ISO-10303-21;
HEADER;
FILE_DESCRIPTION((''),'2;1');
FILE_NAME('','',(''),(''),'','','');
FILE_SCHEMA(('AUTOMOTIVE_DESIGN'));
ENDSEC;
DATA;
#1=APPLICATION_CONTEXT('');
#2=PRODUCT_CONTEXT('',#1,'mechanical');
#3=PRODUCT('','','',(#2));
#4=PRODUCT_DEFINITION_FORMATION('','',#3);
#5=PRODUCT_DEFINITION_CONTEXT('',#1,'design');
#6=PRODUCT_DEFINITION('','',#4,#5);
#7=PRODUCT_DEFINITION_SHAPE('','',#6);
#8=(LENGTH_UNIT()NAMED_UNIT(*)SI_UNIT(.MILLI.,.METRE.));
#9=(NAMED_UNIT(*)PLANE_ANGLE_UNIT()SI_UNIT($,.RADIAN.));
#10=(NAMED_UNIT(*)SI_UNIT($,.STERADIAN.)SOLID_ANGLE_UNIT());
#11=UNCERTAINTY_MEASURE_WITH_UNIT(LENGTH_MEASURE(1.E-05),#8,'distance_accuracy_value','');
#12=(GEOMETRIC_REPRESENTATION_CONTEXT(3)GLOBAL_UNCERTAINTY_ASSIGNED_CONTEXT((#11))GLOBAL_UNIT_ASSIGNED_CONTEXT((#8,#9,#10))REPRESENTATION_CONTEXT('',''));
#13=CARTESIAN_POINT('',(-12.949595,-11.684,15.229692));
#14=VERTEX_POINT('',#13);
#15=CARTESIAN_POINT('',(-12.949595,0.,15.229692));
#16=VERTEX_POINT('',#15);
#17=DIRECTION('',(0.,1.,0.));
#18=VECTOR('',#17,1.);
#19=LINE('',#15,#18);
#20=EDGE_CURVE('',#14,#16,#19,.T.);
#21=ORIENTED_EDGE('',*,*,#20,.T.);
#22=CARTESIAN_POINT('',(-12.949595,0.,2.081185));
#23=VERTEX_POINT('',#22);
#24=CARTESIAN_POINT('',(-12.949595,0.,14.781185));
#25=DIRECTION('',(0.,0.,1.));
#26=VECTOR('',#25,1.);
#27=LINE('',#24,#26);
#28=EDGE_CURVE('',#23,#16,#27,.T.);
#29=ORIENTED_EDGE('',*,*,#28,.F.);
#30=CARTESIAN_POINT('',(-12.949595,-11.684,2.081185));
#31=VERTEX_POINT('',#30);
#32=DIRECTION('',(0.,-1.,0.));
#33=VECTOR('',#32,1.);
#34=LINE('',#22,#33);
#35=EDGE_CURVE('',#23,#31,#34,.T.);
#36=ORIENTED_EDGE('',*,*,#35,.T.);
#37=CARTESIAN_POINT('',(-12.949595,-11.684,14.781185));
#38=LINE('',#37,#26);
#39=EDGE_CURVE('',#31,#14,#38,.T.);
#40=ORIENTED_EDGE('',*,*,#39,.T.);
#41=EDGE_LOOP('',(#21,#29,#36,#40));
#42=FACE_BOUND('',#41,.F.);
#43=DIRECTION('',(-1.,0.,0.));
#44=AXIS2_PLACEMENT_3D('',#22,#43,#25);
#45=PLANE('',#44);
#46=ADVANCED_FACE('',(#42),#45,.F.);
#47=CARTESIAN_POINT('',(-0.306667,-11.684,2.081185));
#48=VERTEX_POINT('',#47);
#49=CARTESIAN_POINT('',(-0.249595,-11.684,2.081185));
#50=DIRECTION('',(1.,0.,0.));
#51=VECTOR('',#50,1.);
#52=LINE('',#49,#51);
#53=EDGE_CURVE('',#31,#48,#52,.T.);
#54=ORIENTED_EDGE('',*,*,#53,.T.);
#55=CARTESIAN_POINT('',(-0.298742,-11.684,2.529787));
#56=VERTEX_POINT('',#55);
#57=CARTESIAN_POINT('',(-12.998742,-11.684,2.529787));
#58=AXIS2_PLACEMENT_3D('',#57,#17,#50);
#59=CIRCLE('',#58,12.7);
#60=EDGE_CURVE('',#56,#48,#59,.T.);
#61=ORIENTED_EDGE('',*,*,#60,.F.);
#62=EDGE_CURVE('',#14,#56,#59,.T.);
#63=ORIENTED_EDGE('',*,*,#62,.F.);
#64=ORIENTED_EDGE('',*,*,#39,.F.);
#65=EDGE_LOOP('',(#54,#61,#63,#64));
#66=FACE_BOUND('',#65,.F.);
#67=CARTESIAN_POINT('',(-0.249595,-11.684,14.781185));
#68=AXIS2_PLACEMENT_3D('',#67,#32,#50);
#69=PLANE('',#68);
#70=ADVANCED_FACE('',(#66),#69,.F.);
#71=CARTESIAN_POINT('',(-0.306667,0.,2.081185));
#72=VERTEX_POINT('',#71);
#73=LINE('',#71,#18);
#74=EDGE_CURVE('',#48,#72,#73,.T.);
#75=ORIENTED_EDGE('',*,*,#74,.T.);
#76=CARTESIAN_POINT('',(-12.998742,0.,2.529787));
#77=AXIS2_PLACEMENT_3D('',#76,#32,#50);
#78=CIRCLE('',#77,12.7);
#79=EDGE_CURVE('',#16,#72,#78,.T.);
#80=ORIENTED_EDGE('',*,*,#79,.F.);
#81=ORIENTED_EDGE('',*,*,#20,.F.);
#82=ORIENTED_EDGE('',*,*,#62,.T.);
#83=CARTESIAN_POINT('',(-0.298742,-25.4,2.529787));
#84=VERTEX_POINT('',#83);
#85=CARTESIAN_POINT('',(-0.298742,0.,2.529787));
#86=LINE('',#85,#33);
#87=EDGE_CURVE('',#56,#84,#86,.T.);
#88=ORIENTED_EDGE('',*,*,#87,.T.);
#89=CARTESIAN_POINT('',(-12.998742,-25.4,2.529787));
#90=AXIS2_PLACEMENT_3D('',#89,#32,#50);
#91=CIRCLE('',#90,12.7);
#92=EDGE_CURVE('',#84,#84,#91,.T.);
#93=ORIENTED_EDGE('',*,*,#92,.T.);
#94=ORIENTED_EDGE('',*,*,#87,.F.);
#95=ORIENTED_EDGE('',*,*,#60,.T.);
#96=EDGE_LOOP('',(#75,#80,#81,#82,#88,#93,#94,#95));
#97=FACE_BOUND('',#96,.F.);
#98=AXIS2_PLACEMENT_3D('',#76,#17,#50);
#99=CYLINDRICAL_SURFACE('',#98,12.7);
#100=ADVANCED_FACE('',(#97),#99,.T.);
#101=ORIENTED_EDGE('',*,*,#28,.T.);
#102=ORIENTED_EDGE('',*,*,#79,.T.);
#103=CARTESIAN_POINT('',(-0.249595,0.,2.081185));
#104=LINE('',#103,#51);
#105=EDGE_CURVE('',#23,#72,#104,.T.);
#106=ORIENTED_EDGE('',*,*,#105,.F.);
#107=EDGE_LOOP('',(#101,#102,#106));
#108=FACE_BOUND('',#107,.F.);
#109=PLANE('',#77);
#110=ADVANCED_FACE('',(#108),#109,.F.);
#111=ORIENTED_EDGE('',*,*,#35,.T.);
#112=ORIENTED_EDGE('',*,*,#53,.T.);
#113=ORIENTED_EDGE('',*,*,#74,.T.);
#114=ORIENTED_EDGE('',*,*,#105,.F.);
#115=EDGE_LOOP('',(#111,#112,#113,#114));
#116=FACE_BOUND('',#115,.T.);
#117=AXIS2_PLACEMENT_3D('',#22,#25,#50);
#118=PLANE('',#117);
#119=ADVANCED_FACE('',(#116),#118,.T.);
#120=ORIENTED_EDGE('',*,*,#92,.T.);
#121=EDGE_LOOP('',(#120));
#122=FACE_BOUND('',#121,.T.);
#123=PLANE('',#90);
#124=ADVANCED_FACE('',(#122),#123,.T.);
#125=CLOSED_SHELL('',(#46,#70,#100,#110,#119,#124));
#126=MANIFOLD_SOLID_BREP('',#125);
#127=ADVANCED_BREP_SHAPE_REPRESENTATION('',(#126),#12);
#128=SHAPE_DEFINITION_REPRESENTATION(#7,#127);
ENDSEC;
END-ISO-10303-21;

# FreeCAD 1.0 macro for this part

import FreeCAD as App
import Part
import Sketcher
from FreeCAD import Vector
Q = App.Units.Quantity

doc = App.newDocument("Part")
params = doc.addObject("Spreadsheet::Sheet", "Params")
for row, (alias, value) in enumerate([
    ("sketch1_diameter", "1 in"),
    ("pad1_length", "1 in"),
    ("sketch2_width", "1 in"),
    ("pocket1_length", "0.46 in"),
], start=1):
    params.set(f"A{row}", alias)
    params.set(f"B{row}", "=" + value)
    params.setAlias(f"B{row}", alias)

body = doc.addObject("PartDesign::Body", "Body")

sketch1 = doc.addObject("Sketcher::SketchObject", "Sketch")
body.addObject(sketch1)
sketch1.AttachmentSupport = (doc.XZ_Plane, [""])
sketch1.MapMode = "FlatFace"
sketch1.addGeometry(Part.Circle(Vector(-12.998742, 2.529787, 0), Vector(0, 0, 1), 12.7), False)
sketch1.addConstraint([
    Sketcher.Constraint("Diameter", 0, Q("1 in")),
    Sketcher.Constraint("DistanceX", 0, 3, -1, 1, Q("12.998742 mm")),
    Sketcher.Constraint("DistanceY", -1, 1, 0, 3, Q("2.529787 mm")),
])
sketch1.setExpression("Constraints[0]", "Params.sketch1_diameter")
pad1 = doc.addObject("PartDesign::Pad", "Pad")
body.addObject(pad1)
pad1.Profile = sketch1
pad1.setExpression("Length", "Params.pad1_length")

sketch2 = doc.addObject("Sketcher::SketchObject", "Sketch001")
body.addObject(sketch2)
sketch2.AttachmentSupport = (doc.XZ_Plane, [""])
sketch2.MapMode = "FlatFace"
sketch2.addGeometry([
    Part.LineSegment(Vector(-12.949595, 27.481185, 0), Vector(-12.949595, 2.081185, 0)),
    Part.LineSegment(Vector(-12.949595, 2.081185, 0), Vector(12.450405, 2.081185, 0)),
    Part.LineSegment(Vector(12.450405, 2.081185, 0), Vector(12.450405, 27.481185, 0)),
    Part.LineSegment(Vector(12.450405, 27.481185, 0), Vector(-12.949595, 27.481185, 0)),
], False)
sketch2.addConstraint([
    Sketcher.Constraint("Coincident", 0, 2, 1, 1),
    Sketcher.Constraint("Coincident", 1, 2, 2, 1),
    Sketcher.Constraint("Coincident", 2, 2, 3, 1),
    Sketcher.Constraint("Coincident", 3, 2, 0, 1),
    Sketcher.Constraint("Vertical", 0),
    Sketcher.Constraint("Horizontal", 1),
    Sketcher.Constraint("Vertical", 2),
    Sketcher.Constraint("Horizontal", 3),
    Sketcher.Constraint("Equal", 3, 0),
    Sketcher.Constraint("DistanceX", 1, 1, 1, 2, Q("1 in")),
    Sketcher.Constraint("DistanceX", 0, 2, -1, 1, Q("12.949595 mm")),
    Sketcher.Constraint("DistanceY", -1, 1, 0, 2, Q("2.081185 mm")),
])
sketch2.setExpression("Constraints[9]", "Params.sketch2_width")
pocket1 = doc.addObject("PartDesign::Pocket", "Pocket")
body.addObject(pocket1)
pocket1.Profile = sketch2
pocket1.setExpression("Length", "Params.pocket1_length")
pocket1.Reversed = True

doc.recompute()
